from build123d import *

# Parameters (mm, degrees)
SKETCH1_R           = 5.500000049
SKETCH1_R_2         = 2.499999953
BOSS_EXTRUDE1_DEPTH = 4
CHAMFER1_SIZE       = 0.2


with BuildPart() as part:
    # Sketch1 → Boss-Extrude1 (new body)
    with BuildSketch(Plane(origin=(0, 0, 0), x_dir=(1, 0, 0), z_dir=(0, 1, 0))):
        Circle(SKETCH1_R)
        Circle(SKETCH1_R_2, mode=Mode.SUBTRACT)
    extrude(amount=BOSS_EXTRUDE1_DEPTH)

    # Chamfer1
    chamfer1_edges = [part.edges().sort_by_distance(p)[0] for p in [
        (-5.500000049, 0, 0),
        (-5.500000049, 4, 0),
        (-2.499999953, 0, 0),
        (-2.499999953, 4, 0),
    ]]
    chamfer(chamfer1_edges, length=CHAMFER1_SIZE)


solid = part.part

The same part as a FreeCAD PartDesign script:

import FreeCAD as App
import Part
import Sketcher

V = App.Vector
Q = App.Units.Quantity


def edges_at(feature, points):
    """Names of the edges that pass closest to the given points."""
    edges = feature.Shape.Edges
    near = lambda p: min(range(len(edges)), key=lambda i: edges[i].distToShape(Part.Vertex(*p))[0])
    return sorted({f"Edge{near(p) + 1}" for p in points})

doc = App.newDocument("Part")
body = doc.addObject("PartDesign::Body", "Body")

# Sketch on XZ plane
sketch1 = doc.addObject("Sketcher::SketchObject", "Sketch")
body.addObject(sketch1)
sketch1.AttachmentSupport = (doc.XZ_Plane, [""])
sketch1.MapMode = "FlatFace"
sketch1.addGeometry([
    Part.Circle(V(0, 0, 0), V(0, 0, 1), 5.5),
    Part.Circle(V(0, 0, 0), V(0, 0, 1), 2.5),
], False)
sketch1.addConstraint([
    Sketcher.Constraint("Coincident", 0, 3, -1, 1),
    Sketcher.Constraint("Coincident", 1, 3, -1, 1),
    Sketcher.Constraint("Diameter", 0, Q("11 mm")),
    Sketcher.Constraint("Diameter", 1, Q("5 mm")),
])
pad1 = doc.addObject("PartDesign::Pad", "Pad")
body.addObject(pad1)
pad1.Profile = sketch1
pad1.Length = 4
pad1.Reversed = True
doc.recompute()

chamfer = doc.addObject("PartDesign::Chamfer", "Chamfer")
body.addObject(chamfer)
chamfer.Base = (pad1, edges_at(pad1, [
    (-5.5, 0, 0),
    (-5.5, 4, 0),
    (-2.5, 0, 0),
    (-2.5, 4, 0),
]))
chamfer.Size = 0.2

doc.recompute()
